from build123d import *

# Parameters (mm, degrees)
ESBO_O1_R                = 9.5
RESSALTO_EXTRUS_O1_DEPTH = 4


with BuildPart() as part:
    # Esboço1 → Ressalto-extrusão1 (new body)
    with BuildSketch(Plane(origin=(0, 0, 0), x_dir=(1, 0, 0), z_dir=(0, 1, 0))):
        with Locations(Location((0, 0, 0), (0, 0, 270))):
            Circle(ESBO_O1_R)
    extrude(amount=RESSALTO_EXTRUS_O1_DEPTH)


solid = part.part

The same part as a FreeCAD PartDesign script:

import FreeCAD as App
import Part
import Sketcher

doc = App.newDocument("Part")
body = doc.addObject("PartDesign::Body", "Body")

# Sketch on XZ plane
sketch1 = doc.addObject("Sketcher::SketchObject", "Sketch")
body.addObject(sketch1)
sketch1.AttachmentSupport = (doc.XZ_Plane, [""])
sketch1.MapMode = "FlatFace"
sketch1.addGeometry(Part.Circle(App.Vector(0, 0, 0), App.Vector(0, 0, 1), 10), False)
sketch1.addConstraint([
    Sketcher.Constraint("Coincident", 0, 3, -1, 1),
    Sketcher.Constraint("Diameter", 0, 19.0),
])
pad1 = doc.addObject("PartDesign::Pad", "Pad")
body.addObject(pad1)
pad1.Profile = sketch1
pad1.Length = 4
pad1.Reversed = True

doc.recompute()
